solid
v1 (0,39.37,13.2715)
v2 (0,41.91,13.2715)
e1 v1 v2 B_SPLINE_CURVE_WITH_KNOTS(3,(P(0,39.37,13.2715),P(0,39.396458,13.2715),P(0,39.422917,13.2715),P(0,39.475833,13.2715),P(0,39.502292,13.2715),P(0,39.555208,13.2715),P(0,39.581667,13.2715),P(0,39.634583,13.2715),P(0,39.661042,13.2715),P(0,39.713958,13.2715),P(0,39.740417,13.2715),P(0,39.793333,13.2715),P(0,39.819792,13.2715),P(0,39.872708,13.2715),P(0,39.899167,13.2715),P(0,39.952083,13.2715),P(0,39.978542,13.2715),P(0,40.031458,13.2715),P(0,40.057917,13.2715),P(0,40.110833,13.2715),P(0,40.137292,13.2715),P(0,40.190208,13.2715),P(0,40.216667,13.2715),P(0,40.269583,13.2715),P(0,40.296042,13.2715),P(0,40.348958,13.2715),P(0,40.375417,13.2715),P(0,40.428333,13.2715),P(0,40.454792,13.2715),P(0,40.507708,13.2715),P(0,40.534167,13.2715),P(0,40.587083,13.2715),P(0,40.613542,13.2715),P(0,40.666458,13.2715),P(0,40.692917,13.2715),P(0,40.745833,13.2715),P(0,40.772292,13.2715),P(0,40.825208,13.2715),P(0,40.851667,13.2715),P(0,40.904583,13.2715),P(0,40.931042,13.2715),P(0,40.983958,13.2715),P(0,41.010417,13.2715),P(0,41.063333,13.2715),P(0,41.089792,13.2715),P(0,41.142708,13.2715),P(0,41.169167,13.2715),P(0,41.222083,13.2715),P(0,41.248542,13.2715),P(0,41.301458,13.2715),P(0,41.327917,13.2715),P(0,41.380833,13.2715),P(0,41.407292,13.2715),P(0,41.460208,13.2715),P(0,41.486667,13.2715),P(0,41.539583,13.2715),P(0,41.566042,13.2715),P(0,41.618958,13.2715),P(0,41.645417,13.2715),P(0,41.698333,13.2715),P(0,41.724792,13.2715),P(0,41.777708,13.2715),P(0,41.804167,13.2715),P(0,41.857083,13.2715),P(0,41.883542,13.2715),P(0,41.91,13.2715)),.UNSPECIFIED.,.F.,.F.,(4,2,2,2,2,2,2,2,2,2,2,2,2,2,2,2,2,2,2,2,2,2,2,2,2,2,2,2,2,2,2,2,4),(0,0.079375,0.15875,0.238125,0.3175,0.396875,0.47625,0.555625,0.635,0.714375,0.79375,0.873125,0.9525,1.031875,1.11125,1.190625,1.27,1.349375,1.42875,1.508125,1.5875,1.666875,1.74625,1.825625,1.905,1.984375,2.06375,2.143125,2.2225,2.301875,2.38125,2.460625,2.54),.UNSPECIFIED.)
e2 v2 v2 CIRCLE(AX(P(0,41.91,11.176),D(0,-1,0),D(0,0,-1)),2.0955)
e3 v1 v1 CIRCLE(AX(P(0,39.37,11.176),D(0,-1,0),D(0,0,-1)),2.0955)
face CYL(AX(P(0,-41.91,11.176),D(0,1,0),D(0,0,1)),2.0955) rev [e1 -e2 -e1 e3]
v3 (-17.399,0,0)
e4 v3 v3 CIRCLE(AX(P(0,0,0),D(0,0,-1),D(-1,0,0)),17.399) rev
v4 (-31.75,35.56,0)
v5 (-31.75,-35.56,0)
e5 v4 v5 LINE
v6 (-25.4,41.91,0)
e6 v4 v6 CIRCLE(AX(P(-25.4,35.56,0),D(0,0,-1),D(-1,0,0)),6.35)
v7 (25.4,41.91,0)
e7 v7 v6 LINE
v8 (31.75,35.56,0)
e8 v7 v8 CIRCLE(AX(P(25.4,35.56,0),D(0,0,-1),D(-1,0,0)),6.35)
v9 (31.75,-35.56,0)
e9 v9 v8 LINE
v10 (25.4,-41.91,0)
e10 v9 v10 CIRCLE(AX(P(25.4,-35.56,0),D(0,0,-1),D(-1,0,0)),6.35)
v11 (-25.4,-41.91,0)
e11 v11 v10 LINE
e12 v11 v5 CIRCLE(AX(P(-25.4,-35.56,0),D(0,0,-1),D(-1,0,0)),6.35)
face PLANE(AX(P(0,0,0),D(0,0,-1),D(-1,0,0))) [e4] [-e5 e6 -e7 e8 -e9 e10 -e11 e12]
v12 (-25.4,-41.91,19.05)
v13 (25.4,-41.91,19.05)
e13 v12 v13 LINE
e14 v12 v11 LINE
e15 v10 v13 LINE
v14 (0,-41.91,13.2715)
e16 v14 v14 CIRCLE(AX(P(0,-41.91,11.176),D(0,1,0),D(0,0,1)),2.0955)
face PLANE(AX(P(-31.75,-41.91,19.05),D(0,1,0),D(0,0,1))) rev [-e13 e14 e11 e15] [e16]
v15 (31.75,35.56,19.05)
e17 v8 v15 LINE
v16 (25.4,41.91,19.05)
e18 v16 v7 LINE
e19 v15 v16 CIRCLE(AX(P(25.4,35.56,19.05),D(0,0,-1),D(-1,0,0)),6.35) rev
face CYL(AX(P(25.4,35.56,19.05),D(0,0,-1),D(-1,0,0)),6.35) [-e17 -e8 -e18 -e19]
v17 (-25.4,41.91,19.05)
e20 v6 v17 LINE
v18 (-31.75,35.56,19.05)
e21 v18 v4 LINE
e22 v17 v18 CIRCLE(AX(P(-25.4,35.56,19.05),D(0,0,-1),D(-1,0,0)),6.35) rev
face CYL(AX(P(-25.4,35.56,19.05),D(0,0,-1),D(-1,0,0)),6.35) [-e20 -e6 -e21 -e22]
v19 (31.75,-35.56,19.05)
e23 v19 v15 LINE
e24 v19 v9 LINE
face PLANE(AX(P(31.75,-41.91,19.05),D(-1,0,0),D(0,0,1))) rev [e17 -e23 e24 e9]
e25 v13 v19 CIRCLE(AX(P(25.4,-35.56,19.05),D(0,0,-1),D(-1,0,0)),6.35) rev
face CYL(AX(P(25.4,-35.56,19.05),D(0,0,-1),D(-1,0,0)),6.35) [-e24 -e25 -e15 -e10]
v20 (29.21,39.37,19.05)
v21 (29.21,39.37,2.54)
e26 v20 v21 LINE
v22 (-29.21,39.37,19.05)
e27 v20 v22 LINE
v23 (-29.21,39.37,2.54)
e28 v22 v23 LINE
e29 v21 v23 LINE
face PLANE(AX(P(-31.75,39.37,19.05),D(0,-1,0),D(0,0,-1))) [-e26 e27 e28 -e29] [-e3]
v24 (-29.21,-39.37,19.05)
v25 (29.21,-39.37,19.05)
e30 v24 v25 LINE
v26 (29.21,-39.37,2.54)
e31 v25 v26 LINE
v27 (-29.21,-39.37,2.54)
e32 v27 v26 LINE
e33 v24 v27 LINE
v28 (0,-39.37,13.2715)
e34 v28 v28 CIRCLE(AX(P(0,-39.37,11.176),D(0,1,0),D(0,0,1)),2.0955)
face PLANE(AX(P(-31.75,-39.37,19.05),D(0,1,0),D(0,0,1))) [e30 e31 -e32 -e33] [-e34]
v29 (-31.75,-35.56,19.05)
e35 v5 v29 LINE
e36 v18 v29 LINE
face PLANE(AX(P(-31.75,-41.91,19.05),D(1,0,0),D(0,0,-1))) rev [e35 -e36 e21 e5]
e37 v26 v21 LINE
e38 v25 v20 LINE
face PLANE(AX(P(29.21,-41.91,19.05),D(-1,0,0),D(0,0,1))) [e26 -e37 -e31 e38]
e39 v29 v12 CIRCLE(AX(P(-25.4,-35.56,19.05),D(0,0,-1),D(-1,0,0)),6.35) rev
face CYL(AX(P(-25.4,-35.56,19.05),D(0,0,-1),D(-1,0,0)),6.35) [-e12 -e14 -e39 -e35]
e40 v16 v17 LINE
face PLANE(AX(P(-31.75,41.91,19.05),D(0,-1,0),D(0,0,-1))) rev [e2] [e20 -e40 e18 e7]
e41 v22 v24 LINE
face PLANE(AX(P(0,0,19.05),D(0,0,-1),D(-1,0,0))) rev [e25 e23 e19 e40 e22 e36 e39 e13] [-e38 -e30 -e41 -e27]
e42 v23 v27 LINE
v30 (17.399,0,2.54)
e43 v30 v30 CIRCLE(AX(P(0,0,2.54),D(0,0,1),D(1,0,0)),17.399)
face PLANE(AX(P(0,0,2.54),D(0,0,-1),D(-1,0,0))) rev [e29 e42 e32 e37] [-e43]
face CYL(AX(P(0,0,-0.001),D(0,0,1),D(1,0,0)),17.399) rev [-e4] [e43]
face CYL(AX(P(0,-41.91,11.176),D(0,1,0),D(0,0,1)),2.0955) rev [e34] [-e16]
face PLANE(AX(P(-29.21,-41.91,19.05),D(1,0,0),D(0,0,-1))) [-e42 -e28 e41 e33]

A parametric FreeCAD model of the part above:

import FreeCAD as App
import Part
import Sketcher

V = App.Vector
Q = App.Units.Quantity


def edges_at(feature, points):
    """Names of the edges that pass closest to the given points."""
    edges = feature.Shape.Edges
    near = lambda p: min(range(len(edges)), key=lambda i: edges[i].distToShape(Part.Vertex(*p))[0])
    return sorted({f"Edge{near(p) + 1}" for p in points})


def faces_at(feature, points):
    """Names of the faces that lie closest to the given points."""
    faces = feature.Shape.Faces
    near = lambda p: min(range(len(faces)), key=lambda i: faces[i].distToShape(Part.Vertex(*p))[0])
    return sorted({f"Face{near(p) + 1}" for p in points})


def add_polygon(sketch, points):
    """Adds a closed chain of lines whose ends are joined by coincident constraints."""
    first, n = sketch.GeometryCount, len(points)
    for a, b in zip(points, points[1:] + points[:1]):
        sketch.addGeometry(Part.LineSegment(App.Vector(*a, 0), App.Vector(*b, 0)), False)
    for i in range(n):
        sketch.addConstraint(Sketcher.Constraint("Coincident", first + i, 2, first + (i + 1) % n, 1))

doc = App.newDocument("Part")
body = doc.addObject("PartDesign::Body", "Body")

# Sketch on XY plane
sketch1 = doc.addObject("Sketcher::SketchObject", "Sketch")
body.addObject(sketch1)
sketch1.AttachmentSupport = (doc.XY_Plane, [""])
sketch1.MapMode = "FlatFace"
add_polygon(sketch1, [(-32, 42), (-32, -42), (32, -42), (32, 42)])  # lines 0-3
sketch1.addConstraint(Sketcher.Constraint("Vertical", 0))
sketch1.addConstraint(Sketcher.Constraint("Horizontal", 1))
sketch1.addConstraint(Sketcher.Constraint("Vertical", 2))
sketch1.addConstraint(Sketcher.Constraint("Horizontal", 3))
sketch1.addConstraint(Sketcher.Constraint("Symmetric", 0, 2, 2, 2, -1, 1))
sketch1.addConstraint(Sketcher.Constraint("DistanceX", 1, 1, 1, 2, Q("2.5 in")))
sketch1.addConstraint(Sketcher.Constraint("DistanceY", 0, 2, 0, 1, Q("3.3 in")))
pad1 = doc.addObject("PartDesign::Pad", "Pad")
body.addObject(pad1)
pad1.Profile = sketch1
pad1.Length = Q("0.75 in")
doc.recompute()

thickness = doc.addObject("PartDesign::Thickness", "Thickness")
body.addObject(thickness)
thickness.Base = (pad1, faces_at(pad1, [(0, 0, 19.05)]))
thickness.Value = Q("0.1 in")
thickness.Reversed = True
thickness.Join = "Intersection"

# Sketch on XY plane
sketch2 = doc.addObject("Sketcher::SketchObject", "Sketch001")
body.addObject(sketch2)
sketch2.AttachmentSupport = (doc.XY_Plane, [""])
sketch2.MapMode = "FlatFace"
sketch2.AttachmentOffset = App.Placement(V(0, 0, 0.1 * 25.4), App.Rotation())
sketch2.addGeometry(Part.Circle(V(0, 0, 0), V(0, 0, 1), 17), False)
sketch2.addConstraint(Sketcher.Constraint("Coincident", 0, 3, -1, 1))
sketch2.addConstraint(Sketcher.Constraint("Diameter", 0, Q("1.37 in")))
pocket1 = doc.addObject("PartDesign::Pocket", "Pocket")
body.addObject(pocket1)
pocket1.Profile = sketch2
pocket1.Type = "UpToFirst"
doc.recompute()

fillet = doc.addObject("PartDesign::Fillet", "Fillet")
body.addObject(fillet)
fillet.Base = (pocket1, edges_at(pocket1, [
    (31.75, -41.91, 9.525),
    (-31.75, -41.91, 9.525),
    (-31.75, 41.91, 9.525),
    (31.75, 41.91, 9.525),
]))
fillet.Radius = Q("0.25 in")

# Sketch on XZ plane
sketch3 = doc.addObject("Sketcher::SketchObject", "Sketch002")
body.addObject(sketch3)
sketch3.AttachmentSupport = (doc.XZ_Plane, [""])
sketch3.MapMode = "FlatFace"
sketch3.AttachmentOffset = App.Placement(V(0, 0, -1.65 * 25.4), App.Rotation())
sketch3.addGeometry(Part.Circle(V(0, 11.2, 0), V(0, 0, 1), 2.1), False)
sketch3.addConstraint(Sketcher.Constraint("PointOnObject", 0, 3, -2))
sketch3.addConstraint(Sketcher.Constraint("Diameter", 0, Q("0.165 in")))
sketch3.addConstraint(Sketcher.Constraint("DistanceY", -1, 1, 0, 3, Q("0.44 in")))
pocket2 = doc.addObject("PartDesign::Pocket", "Pocket001")
body.addObject(pocket2)
pocket2.Profile = sketch3
pocket2.Type = "ThroughAll"
pocket2.Midplane = True

doc.recompute()
